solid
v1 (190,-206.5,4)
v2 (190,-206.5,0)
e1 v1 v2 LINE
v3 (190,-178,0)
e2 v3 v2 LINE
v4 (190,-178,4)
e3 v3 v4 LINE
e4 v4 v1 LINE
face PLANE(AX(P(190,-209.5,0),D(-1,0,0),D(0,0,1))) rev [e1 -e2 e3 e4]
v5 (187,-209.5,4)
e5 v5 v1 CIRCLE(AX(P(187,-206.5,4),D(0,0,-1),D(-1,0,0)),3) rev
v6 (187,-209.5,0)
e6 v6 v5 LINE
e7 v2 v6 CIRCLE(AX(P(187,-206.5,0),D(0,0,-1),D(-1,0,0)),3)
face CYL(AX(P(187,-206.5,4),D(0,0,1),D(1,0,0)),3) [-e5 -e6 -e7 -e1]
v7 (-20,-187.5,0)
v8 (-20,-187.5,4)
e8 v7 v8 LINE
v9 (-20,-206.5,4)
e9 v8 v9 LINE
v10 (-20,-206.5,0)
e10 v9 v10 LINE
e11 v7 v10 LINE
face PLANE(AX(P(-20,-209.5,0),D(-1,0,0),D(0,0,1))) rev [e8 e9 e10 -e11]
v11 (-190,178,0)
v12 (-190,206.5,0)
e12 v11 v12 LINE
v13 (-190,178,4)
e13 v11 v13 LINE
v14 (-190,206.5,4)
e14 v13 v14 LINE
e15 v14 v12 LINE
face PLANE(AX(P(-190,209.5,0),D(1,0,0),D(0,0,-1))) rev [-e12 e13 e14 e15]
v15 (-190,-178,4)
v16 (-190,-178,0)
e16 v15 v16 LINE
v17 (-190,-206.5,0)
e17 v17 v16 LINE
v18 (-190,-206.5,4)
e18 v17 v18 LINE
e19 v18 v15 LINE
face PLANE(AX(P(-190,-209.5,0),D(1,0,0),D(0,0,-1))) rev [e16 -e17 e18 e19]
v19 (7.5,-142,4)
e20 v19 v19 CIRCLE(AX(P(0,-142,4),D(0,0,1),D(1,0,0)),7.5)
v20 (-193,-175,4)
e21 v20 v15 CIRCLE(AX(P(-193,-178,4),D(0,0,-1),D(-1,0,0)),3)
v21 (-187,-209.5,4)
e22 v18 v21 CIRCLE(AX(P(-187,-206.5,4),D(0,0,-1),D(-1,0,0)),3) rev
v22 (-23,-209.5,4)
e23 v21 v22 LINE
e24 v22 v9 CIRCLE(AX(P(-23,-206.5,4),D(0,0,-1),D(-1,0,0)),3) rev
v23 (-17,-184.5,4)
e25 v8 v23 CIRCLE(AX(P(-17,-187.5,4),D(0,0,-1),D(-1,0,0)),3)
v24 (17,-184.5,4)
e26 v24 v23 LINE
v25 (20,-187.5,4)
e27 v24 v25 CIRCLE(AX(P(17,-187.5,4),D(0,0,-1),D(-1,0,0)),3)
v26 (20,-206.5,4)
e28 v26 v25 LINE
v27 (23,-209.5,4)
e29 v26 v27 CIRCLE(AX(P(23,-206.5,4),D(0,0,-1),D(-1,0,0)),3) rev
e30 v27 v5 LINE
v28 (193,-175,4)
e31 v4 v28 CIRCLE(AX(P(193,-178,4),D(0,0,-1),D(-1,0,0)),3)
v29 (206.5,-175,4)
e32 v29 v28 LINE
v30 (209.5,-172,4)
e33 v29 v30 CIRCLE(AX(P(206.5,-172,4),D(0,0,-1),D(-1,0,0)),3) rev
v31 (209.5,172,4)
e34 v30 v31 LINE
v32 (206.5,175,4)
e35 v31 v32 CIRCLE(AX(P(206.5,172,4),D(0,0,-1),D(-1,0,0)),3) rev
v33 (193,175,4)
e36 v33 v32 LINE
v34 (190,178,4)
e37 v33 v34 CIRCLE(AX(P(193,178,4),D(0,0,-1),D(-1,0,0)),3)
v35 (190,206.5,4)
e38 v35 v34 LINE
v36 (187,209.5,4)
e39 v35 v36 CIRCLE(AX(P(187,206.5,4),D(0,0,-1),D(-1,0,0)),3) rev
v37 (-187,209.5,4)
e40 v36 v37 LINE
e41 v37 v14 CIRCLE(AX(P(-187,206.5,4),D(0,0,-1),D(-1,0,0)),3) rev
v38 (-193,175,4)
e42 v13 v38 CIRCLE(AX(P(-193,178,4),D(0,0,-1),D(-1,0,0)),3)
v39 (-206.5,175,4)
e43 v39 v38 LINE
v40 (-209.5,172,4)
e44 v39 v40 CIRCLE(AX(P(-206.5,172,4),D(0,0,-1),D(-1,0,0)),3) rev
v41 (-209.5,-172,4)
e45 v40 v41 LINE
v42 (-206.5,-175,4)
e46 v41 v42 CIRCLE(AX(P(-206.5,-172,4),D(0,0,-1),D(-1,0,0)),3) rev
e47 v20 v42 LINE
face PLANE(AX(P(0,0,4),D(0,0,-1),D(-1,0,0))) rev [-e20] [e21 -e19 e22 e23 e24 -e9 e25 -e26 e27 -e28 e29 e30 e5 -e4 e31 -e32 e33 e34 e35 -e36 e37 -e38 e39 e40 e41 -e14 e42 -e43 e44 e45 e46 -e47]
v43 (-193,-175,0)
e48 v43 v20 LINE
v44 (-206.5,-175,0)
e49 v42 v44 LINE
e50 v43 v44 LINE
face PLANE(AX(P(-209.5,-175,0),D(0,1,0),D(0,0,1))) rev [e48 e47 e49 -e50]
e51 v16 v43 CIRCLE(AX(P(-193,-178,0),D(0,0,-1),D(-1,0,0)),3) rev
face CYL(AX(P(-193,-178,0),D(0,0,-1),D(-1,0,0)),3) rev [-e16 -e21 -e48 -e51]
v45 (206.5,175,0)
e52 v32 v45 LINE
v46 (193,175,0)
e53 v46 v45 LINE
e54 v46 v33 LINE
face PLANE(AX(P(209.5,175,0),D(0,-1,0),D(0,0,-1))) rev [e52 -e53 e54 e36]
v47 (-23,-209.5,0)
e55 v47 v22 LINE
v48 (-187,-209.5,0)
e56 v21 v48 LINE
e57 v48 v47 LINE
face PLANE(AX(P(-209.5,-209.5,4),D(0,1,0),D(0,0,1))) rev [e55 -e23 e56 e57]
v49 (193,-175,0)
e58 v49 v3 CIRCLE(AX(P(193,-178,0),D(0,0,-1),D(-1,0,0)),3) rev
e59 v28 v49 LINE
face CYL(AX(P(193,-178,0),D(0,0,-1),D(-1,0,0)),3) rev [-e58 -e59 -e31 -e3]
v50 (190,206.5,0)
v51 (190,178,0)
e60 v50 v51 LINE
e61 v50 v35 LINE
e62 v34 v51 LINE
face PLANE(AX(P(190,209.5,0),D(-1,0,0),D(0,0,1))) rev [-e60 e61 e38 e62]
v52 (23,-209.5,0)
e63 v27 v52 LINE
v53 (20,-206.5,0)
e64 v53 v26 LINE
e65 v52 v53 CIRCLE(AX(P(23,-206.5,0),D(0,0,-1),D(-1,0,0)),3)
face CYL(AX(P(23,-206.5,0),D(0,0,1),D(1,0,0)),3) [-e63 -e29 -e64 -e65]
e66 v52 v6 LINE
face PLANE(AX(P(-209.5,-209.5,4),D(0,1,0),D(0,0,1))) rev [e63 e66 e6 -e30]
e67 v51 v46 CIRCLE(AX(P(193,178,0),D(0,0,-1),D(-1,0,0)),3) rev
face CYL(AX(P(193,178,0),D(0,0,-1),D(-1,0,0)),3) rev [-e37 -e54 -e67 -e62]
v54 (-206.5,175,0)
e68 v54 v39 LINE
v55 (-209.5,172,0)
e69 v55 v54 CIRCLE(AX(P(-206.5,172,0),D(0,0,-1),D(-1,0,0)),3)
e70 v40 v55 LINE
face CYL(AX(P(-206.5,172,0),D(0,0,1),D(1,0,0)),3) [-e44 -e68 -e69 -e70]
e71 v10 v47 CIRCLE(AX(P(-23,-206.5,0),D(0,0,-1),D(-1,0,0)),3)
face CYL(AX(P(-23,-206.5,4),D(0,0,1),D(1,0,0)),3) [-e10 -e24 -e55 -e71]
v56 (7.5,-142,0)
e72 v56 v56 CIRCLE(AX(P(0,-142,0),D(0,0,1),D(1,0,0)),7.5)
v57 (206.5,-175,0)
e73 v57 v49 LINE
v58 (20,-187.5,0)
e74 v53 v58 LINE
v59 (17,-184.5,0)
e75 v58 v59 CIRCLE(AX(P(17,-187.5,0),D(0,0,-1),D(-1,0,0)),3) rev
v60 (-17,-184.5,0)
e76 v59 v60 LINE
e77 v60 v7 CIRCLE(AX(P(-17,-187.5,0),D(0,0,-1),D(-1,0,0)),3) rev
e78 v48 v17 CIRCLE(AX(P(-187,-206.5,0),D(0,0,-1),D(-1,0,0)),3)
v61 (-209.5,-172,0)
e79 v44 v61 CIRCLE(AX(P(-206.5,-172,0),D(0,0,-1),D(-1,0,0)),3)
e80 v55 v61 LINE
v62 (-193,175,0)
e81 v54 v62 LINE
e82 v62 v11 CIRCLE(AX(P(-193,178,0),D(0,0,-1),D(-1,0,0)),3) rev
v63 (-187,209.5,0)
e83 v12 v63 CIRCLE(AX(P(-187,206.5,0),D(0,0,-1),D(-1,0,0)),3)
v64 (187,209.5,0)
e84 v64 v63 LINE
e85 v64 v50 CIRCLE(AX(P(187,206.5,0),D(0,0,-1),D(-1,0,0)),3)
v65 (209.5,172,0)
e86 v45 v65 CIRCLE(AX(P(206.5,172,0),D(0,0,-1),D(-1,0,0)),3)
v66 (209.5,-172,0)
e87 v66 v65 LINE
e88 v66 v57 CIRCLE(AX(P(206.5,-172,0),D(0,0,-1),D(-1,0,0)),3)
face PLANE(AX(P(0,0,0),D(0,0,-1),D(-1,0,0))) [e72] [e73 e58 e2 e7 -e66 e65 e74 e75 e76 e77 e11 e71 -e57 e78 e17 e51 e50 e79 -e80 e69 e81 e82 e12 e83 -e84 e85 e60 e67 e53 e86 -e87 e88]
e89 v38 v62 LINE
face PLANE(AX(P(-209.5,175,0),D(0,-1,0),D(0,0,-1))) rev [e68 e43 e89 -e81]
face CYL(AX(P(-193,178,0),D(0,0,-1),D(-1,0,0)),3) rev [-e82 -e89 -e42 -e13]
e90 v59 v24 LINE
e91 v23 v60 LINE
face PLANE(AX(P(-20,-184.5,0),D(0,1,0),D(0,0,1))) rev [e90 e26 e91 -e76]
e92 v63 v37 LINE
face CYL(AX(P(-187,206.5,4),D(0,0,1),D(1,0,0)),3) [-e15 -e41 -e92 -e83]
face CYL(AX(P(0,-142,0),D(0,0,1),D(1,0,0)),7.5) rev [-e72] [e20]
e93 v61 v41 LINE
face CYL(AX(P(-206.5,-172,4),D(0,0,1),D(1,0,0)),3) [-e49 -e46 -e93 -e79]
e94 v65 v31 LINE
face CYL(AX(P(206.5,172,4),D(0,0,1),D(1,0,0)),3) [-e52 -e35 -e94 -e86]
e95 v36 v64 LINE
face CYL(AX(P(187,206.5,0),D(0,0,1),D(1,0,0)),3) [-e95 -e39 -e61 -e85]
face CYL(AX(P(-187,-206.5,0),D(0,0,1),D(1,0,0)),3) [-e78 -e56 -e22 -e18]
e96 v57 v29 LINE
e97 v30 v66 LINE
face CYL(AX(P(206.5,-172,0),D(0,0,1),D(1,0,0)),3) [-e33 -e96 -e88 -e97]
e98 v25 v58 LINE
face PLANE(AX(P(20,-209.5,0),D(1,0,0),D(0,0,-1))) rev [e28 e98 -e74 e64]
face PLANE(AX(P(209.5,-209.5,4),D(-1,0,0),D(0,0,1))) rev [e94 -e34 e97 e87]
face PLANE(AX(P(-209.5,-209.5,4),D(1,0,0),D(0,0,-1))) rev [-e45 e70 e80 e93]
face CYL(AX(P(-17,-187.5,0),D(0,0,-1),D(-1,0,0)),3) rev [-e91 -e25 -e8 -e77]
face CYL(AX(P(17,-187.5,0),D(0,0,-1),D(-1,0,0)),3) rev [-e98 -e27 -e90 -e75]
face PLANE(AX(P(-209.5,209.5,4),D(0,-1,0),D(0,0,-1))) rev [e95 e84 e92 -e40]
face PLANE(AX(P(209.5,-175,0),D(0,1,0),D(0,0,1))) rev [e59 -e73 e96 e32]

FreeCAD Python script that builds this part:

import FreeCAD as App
import Part
import Sketcher
from FreeCAD import Vector
Q = App.Units.Quantity


def edges_at(feature, points):
    """Names of the edges that pass closest to the given points."""
    edges = feature.Shape.Edges
    near = lambda p: min(range(len(edges)), key=lambda i: edges[i].distToShape(Part.Vertex(*p))[0])
    return sorted({f"Edge{near(p) + 1}" for p in points})

doc = App.newDocument("Part")
body = doc.addObject("PartDesign::Body", "Body")

# Sketch on XY plane
sketch1 = body.newObject("Sketcher::SketchObject", "Sketch")
sketch1.AttachmentSupport = (doc.getObject("XY_Plane"), [""])
sketch1.MapMode = "FlatFace"
sketch1.addGeometry([
    Part.LineSegment(Vector(-209.5, 209.5, 0), Vector(-209.5, -209.5, 0)),
    Part.LineSegment(Vector(-209.5, -209.5, 0), Vector(209.5, -209.5, 0)),
    Part.LineSegment(Vector(209.5, -209.5, 0), Vector(209.5, 209.5, 0)),
    Part.LineSegment(Vector(209.5, 209.5, 0), Vector(-209.5, 209.5, 0)),
], False)
sketch1.addConstraint([
    Sketcher.Constraint("Coincident", 0, 2, 1, 1),
    Sketcher.Constraint("Coincident", 1, 2, 2, 1),
    Sketcher.Constraint("Coincident", 2, 2, 3, 1),
    Sketcher.Constraint("Coincident", 3, 2, 0, 1),
    Sketcher.Constraint("Vertical", 0),
    Sketcher.Constraint("Horizontal", 1),
    Sketcher.Constraint("Vertical", 2),
    Sketcher.Constraint("Horizontal", 3),
    Sketcher.Constraint("Symmetric", 0, 2, 2, 2, -1, 1),
    Sketcher.Constraint("Equal", 3, 0),
    Sketcher.Constraint("DistanceX", 1, 1, 1, 2, Q("419 mm")),
])
pad1 = body.newObject("PartDesign::Pad", "Pad")
pad1.Profile = sketch1
pad1.Length = 4

# Sketch on XY plane
sketch2 = body.newObject("Sketcher::SketchObject", "Sketch001")
sketch2.AttachmentSupport = (doc.getObject("XY_Plane"), [""])
sketch2.MapMode = "FlatFace"
sketch2.AttachmentOffset = App.Placement(Vector(0, 0, 4), App.Rotation())
sketch2.addGeometry([
    Part.LineSegment(Vector(-209.5, 209.5, 0), Vector(-209.5, 175, 0)),  # 0
    Part.LineSegment(Vector(-209.5, 175, 0), Vector(-190, 175, 0)),  # 1
    Part.LineSegment(Vector(-190, 175, 0), Vector(-190, 209.5, 0)),  # 2
    Part.LineSegment(Vector(-190, 209.5, 0), Vector(-209.5, 209.5, 0)),  # 3
    Part.LineSegment(Vector(190, 209.5, 0), Vector(190, 175, 0)),  # 4
    Part.LineSegment(Vector(190, 175, 0), Vector(209.5, 175, 0)),  # 5
    Part.LineSegment(Vector(209.5, 175, 0), Vector(209.5, 209.5, 0)),  # 6
    Part.LineSegment(Vector(209.5, 209.5, 0), Vector(190, 209.5, 0)),  # 7
    Part.LineSegment(Vector(-209.5, -175, 0), Vector(-209.5, -209.5, 0)),  # 8
    Part.LineSegment(Vector(-209.5, -209.5, 0), Vector(-190, -209.5, 0)),  # 9
    Part.LineSegment(Vector(-190, -209.5, 0), Vector(-190, -175, 0)),  # 10
    Part.LineSegment(Vector(-190, -175, 0), Vector(-209.5, -175, 0)),  # 11
    Part.LineSegment(Vector(190, -175, 0), Vector(190, -209.5, 0)),  # 12
    Part.LineSegment(Vector(190, -209.5, 0), Vector(209.5, -209.5, 0)),  # 13
    Part.LineSegment(Vector(209.5, -209.5, 0), Vector(209.5, -175, 0)),  # 14
    Part.LineSegment(Vector(209.5, -175, 0), Vector(190, -175, 0)),  # 15
], False)
sketch2.addConstraint([
    Sketcher.Constraint("Coincident", 0, 2, 1, 1),
    Sketcher.Constraint("Coincident", 1, 2, 2, 1),
    Sketcher.Constraint("Coincident", 2, 2, 3, 1),
    Sketcher.Constraint("Coincident", 3, 2, 0, 1),
    Sketcher.Constraint("Coincident", 4, 2, 5, 1),
    Sketcher.Constraint("Coincident", 5, 2, 6, 1),
    Sketcher.Constraint("Coincident", 6, 2, 7, 1),
    Sketcher.Constraint("Coincident", 7, 2, 4, 1),
    Sketcher.Constraint("Coincident", 8, 2, 9, 1),
    Sketcher.Constraint("Coincident", 9, 2, 10, 1),
    Sketcher.Constraint("Coincident", 10, 2, 11, 1),
    Sketcher.Constraint("Coincident", 11, 2, 8, 1),
    Sketcher.Constraint("Coincident", 12, 2, 13, 1),
    Sketcher.Constraint("Coincident", 13, 2, 14, 1),
    Sketcher.Constraint("Coincident", 14, 2, 15, 1),
    Sketcher.Constraint("Coincident", 15, 2, 12, 1),
    Sketcher.Constraint("Vertical", 0),
    Sketcher.Constraint("Horizontal", 1),
    Sketcher.Constraint("Vertical", 2),
    Sketcher.Constraint("Horizontal", 3),
    Sketcher.Constraint("Vertical", 4),
    Sketcher.Constraint("Horizontal", 5),
    Sketcher.Constraint("Vertical", 6),
    Sketcher.Constraint("Horizontal", 7),
    Sketcher.Constraint("Vertical", 8),
    Sketcher.Constraint("Horizontal", 9),
    Sketcher.Constraint("Vertical", 10),
    Sketcher.Constraint("Horizontal", 11),
    Sketcher.Constraint("Vertical", 12),
    Sketcher.Constraint("Horizontal", 13),
    Sketcher.Constraint("Vertical", 14),
    Sketcher.Constraint("Horizontal", 15),
    Sketcher.Constraint("Symmetric", 6, 2, 8, 2, -1, 1),
    Sketcher.Constraint("Symmetric", 4, 2, 10, 2, -1, 1),
    Sketcher.Constraint("Symmetric", 2, 2, 12, 2, -1, 1),
    Sketcher.Constraint("Symmetric", 0, 2, 14, 2, -1, 1),
    Sketcher.Constraint("Symmetric", 1, 2, 4, 2, -2),
    Sketcher.Constraint("Symmetric", 3, 2, 6, 2, -2),
    Sketcher.Constraint("DistanceX", 1, 1, 1, 2, Q("19.5 mm")),
    Sketcher.Constraint("DistanceY", 0, 2, 0, 1, Q("34.5 mm")),
    Sketcher.Constraint("DistanceY", -1, 1, 0, 2, Q("175 mm")),
    Sketcher.Constraint("DistanceX", 1, 2, -1, 1, Q("190 mm")),
])
pocket1 = body.newObject("PartDesign::Pocket", "Pocket")
pocket1.Profile = sketch2
pocket1.Type = "ThroughAll"

# Sketch on XY plane
sketch3 = body.newObject("Sketcher::SketchObject", "Sketch002")
sketch3.AttachmentSupport = (doc.getObject("XY_Plane"), [""])
sketch3.MapMode = "FlatFace"
sketch3.AttachmentOffset = App.Placement(Vector(0, 0, 4), App.Rotation())
sketch3.addGeometry([
    Part.Circle(Vector(0, -142, 0), Vector(0, 0, 1), 7.5),  # 0
    Part.LineSegment(Vector(-20, -184.5, 0), Vector(-20, -209.5, 0)),  # 1
    Part.LineSegment(Vector(-20, -209.5, 0), Vector(20, -209.5, 0)),  # 2
    Part.LineSegment(Vector(20, -209.5, 0), Vector(20, -184.5, 0)),  # 3
    Part.LineSegment(Vector(20, -184.5, 0), Vector(-20, -184.5, 0)),  # 4
], False)
sketch3.addConstraint([
    Sketcher.Constraint("Coincident", 1, 2, 2, 1),
    Sketcher.Constraint("Coincident", 2, 2, 3, 1),
    Sketcher.Constraint("Coincident", 3, 2, 4, 1),
    Sketcher.Constraint("Coincident", 4, 2, 1, 1),
    Sketcher.Constraint("Vertical", 1),
    Sketcher.Constraint("Horizontal", 2),
    Sketcher.Constraint("Vertical", 3),
    Sketcher.Constraint("Horizontal", 4),
    Sketcher.Constraint("PointOnObject", 0, 3, -2),
    Sketcher.Constraint("Diameter", 0, Q("15 mm")),
    Sketcher.Constraint("DistanceX", 2, 1, 2, 2, Q("40 mm")),
    Sketcher.Constraint("DistanceY", 1, 2, 1, 1, Q("25 mm")),
    Sketcher.Constraint("DistanceY", 0, 3, -1, 1, Q("142 mm")),
    Sketcher.Constraint("DistanceX", 1, 2, -1, 1, Q("20 mm")),
    Sketcher.Constraint("DistanceY", 1, 2, -1, 1, Q("209.5 mm")),
])
pocket2 = body.newObject("PartDesign::Pocket", "Pocket001")
pocket2.Profile = sketch3
pocket2.Length = 4
doc.recompute()

fillet = body.newObject("PartDesign::Fillet", "Fillet")
fillet.Base = (pocket2, edges_at(pocket2, [
    (209.5, 175, 2),
    (190, 175, 2),
    (190, 209.5, 2),
    (-209.5, -175, 2),
    (-190, -175, 2),
    (-190, -209.5, 2),
    (209.5, -175, 2),
    (190, -209.5, 2),
    (190, -175, 2),
    (-209.5, 175, 2),
    (-190, 209.5, 2),
    (-190, 175, 2),
    (-20, -209.5, 2),
    (-20, -184.5, 2),
    (20, -184.5, 2),
    (20, -209.5, 2),
]))
fillet.Radius = 3

doc.recompute()
